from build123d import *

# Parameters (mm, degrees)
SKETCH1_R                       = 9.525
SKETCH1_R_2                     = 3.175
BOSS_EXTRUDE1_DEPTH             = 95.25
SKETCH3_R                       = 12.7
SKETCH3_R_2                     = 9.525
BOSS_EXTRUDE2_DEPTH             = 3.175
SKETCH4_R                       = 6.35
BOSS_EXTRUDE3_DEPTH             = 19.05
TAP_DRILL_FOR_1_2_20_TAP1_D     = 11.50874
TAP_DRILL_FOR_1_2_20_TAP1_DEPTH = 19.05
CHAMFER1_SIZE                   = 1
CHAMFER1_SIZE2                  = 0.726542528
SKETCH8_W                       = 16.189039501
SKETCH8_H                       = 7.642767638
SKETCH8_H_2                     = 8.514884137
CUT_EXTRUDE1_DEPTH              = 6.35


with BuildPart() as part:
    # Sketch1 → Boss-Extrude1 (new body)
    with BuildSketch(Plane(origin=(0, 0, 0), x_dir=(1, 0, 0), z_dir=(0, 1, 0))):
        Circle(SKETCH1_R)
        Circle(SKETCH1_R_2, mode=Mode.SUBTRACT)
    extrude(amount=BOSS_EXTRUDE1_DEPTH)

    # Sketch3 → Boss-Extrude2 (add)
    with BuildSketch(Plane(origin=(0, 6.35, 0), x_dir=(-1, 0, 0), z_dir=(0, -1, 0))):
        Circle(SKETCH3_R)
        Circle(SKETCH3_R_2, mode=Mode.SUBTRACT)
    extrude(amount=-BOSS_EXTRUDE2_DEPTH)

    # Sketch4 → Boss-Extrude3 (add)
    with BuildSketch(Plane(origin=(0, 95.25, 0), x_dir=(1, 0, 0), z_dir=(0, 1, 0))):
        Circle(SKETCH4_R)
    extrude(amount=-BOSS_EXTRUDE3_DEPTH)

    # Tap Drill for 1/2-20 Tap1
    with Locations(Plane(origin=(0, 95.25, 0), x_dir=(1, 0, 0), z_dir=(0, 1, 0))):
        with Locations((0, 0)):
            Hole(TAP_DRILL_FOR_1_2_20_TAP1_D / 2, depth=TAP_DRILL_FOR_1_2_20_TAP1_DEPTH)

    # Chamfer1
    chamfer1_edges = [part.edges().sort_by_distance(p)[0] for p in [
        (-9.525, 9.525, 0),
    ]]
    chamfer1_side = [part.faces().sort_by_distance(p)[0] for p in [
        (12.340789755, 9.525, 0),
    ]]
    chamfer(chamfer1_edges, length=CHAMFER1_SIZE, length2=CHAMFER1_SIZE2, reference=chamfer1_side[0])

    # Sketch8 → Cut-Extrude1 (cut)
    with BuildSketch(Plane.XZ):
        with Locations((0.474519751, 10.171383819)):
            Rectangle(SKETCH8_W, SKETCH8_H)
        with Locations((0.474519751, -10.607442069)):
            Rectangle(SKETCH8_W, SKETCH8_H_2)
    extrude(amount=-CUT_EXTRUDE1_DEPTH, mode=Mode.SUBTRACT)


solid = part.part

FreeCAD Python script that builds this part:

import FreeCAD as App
import Part
import Sketcher
Q = App.Units.Quantity


def edges_at(feature, points):
    """Names of the edges that pass closest to the given points."""
    edges = feature.Shape.Edges
    near = lambda p: min(range(len(edges)), key=lambda i: edges[i].distToShape(Part.Vertex(*p))[0])
    return sorted({f"Edge{near(p) + 1}" for p in points})


def add_polygon(sketch, points):
    """Adds a closed chain of lines whose ends are joined by coincident constraints."""
    first, n = sketch.GeometryCount, len(points)
    for a, b in zip(points, points[1:] + points[:1]):
        sketch.addGeometry(Part.LineSegment(App.Vector(*a, 0), App.Vector(*b, 0)), False)
    for i in range(n):
        sketch.addConstraint(Sketcher.Constraint("Coincident", first + i, 2, first + (i + 1) % n, 1))

doc = App.newDocument("Part")
body = doc.addObject("PartDesign::Body", "Body")

# Sketch on XZ plane
sketch1 = body.newObject("Sketcher::SketchObject", "Sketch")
sketch1.AttachmentSupport = (doc.getObject("XZ_Plane"), [""])
sketch1.MapMode = "FlatFace"
sketch1.addGeometry(Part.Circle(App.Vector(0, 0, 0), App.Vector(0, 0, 1), 9.5), False)
sketch1.addGeometry(Part.Circle(App.Vector(0, 0, 0), App.Vector(0, 0, 1), 3.2), False)
sketch1.addConstraint(Sketcher.Constraint("Coincident", 0, 3, -1, 1))
sketch1.addConstraint(Sketcher.Constraint("Coincident", 1, 3, -1, 1))
sketch1.addConstraint(Sketcher.Constraint("Diameter", 0, Q("0.75 in")))
sketch1.addConstraint(Sketcher.Constraint("Diameter", 1, Q("0.25 in")))
pad1 = body.newObject("PartDesign::Pad", "Pad")
pad1.Profile = sketch1
pad1.Length = Q("3.75 in")
pad1.Reversed = True

# Sketch on XZ plane
sketch2 = body.newObject("Sketcher::SketchObject", "Sketch001")
sketch2.AttachmentSupport = (doc.getObject("XZ_Plane"), [""])
sketch2.MapMode = "FlatFace"
sketch2.AttachmentOffset = App.Placement(App.Vector(0, 0, -0.25 * 25.4), App.Rotation())
sketch2.addGeometry(Part.Circle(App.Vector(0, 0, 0), App.Vector(0, 0, 1), 13), False)
sketch2.addGeometry(Part.Circle(App.Vector(0, 0, 0), App.Vector(0, 0, 1), 10), False)
sketch2.addConstraint(Sketcher.Constraint("Coincident", 0, 3, -1, 1))
sketch2.addConstraint(Sketcher.Constraint("Coincident", 1, 3, -1, 1))
sketch2.addConstraint(Sketcher.Constraint("Diameter", 0, Q("1 in")))
sketch2.addConstraint(Sketcher.Constraint("Diameter", 1, Q("0.75 in")))
pad2 = body.newObject("PartDesign::Pad", "Pad001")
pad2.Profile = sketch2
pad2.Length = Q("0.125 in")
pad2.Reversed = True

# Sketch on XZ plane
sketch3 = body.newObject("Sketcher::SketchObject", "Sketch002")
sketch3.AttachmentSupport = (doc.getObject("XZ_Plane"), [""])
sketch3.MapMode = "FlatFace"
sketch3.AttachmentOffset = App.Placement(App.Vector(0, 0, -3.75 * 25.4), App.Rotation())
sketch3.addGeometry(Part.Circle(App.Vector(0, 0, 0), App.Vector(0, 0, 1), 6), False)
sketch3.addConstraint(Sketcher.Constraint("Coincident", 0, 3, -1, 1))
sketch3.addConstraint(Sketcher.Constraint("Diameter", 0, Q("0.5 in")))
pad3 = body.newObject("PartDesign::Pad", "Pad002")
pad3.Profile = sketch3
pad3.Length = Q("0.75 in")

# Sketch on XZ plane
sketch4 = body.newObject("Sketcher::SketchObject", "Sketch003")
sketch4.AttachmentSupport = (doc.getObject("XZ_Plane"), [""])
sketch4.MapMode = "FlatFace"
sketch4.AttachmentOffset = App.Placement(App.Vector(0, 0, -3.75 * 25.4), App.Rotation())
sketch4.addGeometry(Part.Circle(App.Vector(0, 0, 0), App.Vector(0, 0, 1), 6), False)
sketch4.addConstraint(Sketcher.Constraint("Coincident", 0, 3, -1, 1))
sketch4.addConstraint(Sketcher.Constraint("Diameter", 0, Q("0.4531 in")))
doc.recompute()
hole = body.newObject("PartDesign::Hole", "Hole")
hole.Profile = sketch4
hole.ThreadType = "None"
hole.Diameter = Q("0.4531 in")
hole.DepthType = "Dimension"
hole.Depth = Q("0.75 in")
hole.DrillPoint = "Flat"
hole.Reversed = True
doc.recompute()

chamfer = body.newObject("PartDesign::Chamfer", "Chamfer")
chamfer.Base = (hole, edges_at(hole, [(-9.525, 9.525, 0)]))
chamfer.ChamferType = "Two distances"
chamfer.Size = 1
chamfer.Size2 = 0.726543

# Sketch on XZ plane
sketch5 = body.newObject("Sketcher::SketchObject", "Sketch004")
sketch5.AttachmentSupport = (doc.getObject("XZ_Plane"), [""])
sketch5.MapMode = "FlatFace"
add_polygon(sketch5, [(-8, 14), (-8, 6), (9, 6), (9, 14)])  # lines 0-3
add_polygon(sketch5, [(-8, -6), (-8, -15), (9, -15), (9, -6)])  # lines 4-7
sketch5.addConstraint(Sketcher.Constraint("Vertical", 0))
sketch5.addConstraint(Sketcher.Constraint("Horizontal", 1))
sketch5.addConstraint(Sketcher.Constraint("Vertical", 2))
sketch5.addConstraint(Sketcher.Constraint("Horizontal", 3))
sketch5.addConstraint(Sketcher.Constraint("Vertical", 4))
sketch5.addConstraint(Sketcher.Constraint("Horizontal", 5))
sketch5.addConstraint(Sketcher.Constraint("Vertical", 6))
sketch5.addConstraint(Sketcher.Constraint("Horizontal", 7))
sketch5.addConstraint(Sketcher.Constraint("Symmetric", 1, 2, 6, 2, -1))
sketch5.addConstraint(Sketcher.Constraint("Vertical", 3, 2, 4, 2))
sketch5.addConstraint(Sketcher.Constraint("DistanceX", 0, 2, -1, 1, Q("0.3 in")))
sketch5.addConstraint(Sketcher.Constraint("DistanceY", 6, 2, 1, 2, Q("0.5 in")))
sketch5.addConstraint(Sketcher.Constraint("DistanceX", 1, 1, 1, 2, 16.18904))
sketch5.addConstraint(Sketcher.Constraint("DistanceY", 0, 2, 0, 1, 7.642768))
sketch5.addConstraint(Sketcher.Constraint("DistanceY", 4, 2, 4, 1, 8.514884))
pocket1 = body.newObject("PartDesign::Pocket", "Pocket")
pocket1.Profile = sketch5
pocket1.Length = Q("0.25 in")

doc.recompute()
